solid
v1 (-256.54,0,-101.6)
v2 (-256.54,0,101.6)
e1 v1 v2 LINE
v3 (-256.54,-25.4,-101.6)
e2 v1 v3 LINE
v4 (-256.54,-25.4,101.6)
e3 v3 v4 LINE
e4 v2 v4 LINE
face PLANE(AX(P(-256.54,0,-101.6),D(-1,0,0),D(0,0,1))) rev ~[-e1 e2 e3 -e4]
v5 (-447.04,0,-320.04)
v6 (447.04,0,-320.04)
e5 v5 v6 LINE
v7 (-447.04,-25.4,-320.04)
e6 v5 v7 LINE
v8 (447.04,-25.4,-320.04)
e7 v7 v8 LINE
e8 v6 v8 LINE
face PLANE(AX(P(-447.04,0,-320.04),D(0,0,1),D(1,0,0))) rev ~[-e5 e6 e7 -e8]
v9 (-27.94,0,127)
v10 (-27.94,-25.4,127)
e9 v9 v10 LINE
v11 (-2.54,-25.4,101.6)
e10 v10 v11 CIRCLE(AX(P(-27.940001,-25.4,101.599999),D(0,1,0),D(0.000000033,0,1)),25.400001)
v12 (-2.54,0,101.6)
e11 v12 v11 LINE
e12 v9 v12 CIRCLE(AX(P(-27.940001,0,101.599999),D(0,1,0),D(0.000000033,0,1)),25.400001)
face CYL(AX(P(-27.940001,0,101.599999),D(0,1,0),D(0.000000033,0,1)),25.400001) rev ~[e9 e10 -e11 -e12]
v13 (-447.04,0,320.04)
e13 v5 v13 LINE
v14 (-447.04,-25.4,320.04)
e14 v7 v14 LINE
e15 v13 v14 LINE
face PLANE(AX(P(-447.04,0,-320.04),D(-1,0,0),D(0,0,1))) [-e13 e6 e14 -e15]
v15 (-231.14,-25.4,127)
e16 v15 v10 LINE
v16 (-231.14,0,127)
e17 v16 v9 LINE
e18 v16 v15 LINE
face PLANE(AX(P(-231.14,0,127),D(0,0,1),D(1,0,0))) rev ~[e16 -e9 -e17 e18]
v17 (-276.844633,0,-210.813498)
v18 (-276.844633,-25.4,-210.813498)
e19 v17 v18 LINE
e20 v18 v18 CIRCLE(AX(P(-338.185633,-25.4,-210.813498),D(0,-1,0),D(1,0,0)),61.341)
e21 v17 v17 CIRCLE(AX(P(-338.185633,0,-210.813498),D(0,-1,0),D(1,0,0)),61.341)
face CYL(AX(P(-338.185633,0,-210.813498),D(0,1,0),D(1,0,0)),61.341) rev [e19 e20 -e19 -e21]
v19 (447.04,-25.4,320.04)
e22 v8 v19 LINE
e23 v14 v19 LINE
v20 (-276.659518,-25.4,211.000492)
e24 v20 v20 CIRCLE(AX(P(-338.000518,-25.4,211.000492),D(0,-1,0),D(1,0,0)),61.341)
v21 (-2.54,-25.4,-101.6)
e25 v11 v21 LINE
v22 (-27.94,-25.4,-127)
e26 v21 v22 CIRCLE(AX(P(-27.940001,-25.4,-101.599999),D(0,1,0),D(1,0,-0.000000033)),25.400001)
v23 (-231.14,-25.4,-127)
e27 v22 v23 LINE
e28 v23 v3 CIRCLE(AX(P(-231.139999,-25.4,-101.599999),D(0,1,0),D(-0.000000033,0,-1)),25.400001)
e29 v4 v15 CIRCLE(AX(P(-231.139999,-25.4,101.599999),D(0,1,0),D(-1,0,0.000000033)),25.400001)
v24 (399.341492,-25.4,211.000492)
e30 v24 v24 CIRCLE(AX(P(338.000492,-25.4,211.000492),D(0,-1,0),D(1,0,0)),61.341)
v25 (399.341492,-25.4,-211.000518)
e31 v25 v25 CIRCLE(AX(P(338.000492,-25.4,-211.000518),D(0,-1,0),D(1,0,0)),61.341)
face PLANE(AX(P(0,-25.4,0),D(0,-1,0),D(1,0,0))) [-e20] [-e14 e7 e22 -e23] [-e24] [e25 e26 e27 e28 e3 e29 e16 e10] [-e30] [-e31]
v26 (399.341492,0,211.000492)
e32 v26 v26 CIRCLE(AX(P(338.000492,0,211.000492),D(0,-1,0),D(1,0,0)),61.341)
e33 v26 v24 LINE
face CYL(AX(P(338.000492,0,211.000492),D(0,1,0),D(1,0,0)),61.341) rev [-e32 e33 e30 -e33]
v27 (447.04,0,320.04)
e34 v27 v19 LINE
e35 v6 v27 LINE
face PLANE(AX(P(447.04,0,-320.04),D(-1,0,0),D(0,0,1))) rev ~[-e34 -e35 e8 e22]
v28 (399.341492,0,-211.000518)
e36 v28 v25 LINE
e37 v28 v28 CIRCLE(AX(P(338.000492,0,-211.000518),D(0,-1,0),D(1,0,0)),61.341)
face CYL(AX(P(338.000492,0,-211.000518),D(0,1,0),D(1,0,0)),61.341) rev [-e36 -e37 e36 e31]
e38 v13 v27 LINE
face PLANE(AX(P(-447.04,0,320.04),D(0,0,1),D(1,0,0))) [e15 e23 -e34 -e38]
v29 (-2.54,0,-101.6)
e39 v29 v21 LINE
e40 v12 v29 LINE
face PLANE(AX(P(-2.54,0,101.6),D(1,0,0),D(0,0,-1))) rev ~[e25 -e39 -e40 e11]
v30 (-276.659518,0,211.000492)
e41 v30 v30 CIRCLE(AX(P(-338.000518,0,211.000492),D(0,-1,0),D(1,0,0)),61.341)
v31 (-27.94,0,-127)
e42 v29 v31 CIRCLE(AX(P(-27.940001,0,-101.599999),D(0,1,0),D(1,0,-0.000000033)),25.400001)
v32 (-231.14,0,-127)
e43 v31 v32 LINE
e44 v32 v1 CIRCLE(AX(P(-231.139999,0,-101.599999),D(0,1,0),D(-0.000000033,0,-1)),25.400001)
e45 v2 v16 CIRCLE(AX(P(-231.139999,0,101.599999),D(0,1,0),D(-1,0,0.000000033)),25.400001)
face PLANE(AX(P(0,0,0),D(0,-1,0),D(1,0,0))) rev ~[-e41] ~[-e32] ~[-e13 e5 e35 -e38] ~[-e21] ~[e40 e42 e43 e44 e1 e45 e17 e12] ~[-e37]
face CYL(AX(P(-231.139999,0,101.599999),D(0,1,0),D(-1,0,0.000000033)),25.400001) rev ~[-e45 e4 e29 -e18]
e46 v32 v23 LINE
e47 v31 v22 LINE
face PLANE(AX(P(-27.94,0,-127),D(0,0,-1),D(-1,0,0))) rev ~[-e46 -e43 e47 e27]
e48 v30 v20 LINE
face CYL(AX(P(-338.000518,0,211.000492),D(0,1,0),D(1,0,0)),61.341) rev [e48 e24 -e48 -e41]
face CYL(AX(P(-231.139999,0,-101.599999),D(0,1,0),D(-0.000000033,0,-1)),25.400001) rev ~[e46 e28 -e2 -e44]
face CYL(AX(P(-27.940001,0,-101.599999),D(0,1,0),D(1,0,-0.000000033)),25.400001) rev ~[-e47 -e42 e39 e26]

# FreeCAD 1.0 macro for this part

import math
import FreeCAD as App
import Part
import Sketcher
Q = App.Units.Quantity

doc = App.newDocument("Part")
body = doc.addObject("PartDesign::Body", "Body")

sketch1 = body.newObject("Sketcher::SketchObject", "Sketch")
sketch1.AttachmentSupport = (doc.getObject("XZ_Plane"), [""])
sketch1.MapMode = "FlatFace"
sketch1.addGeometry([
    Part.LineSegment(App.Vector(-447, 320, 0), App.Vector(-447, -320, 0)),
    Part.LineSegment(App.Vector(-447, -320, 0), App.Vector(447, -320, 0)),
    Part.LineSegment(App.Vector(447, -320, 0), App.Vector(447, 320, 0)),
    Part.LineSegment(App.Vector(447, 320, 0), App.Vector(-447, 320, 0)),
    Part.Circle(App.Vector(-338, -211, 0), App.Vector(0, 0, 1), 61),
    Part.Circle(App.Vector(338, -211, 0), App.Vector(0, 0, 1), 61),
    Part.LineSegment(App.Vector(-231, 127, 0), App.Vector(-28, 127, 0)),
    Part.ArcOfCircle(Part.Circle(App.Vector(-28, 102, 0), App.Vector(0, 0, 1), 25), math.radians(0), math.radians(90)),
    Part.LineSegment(App.Vector(-3, 102, 0), App.Vector(-3, -102, 0)),
    Part.ArcOfCircle(Part.Circle(App.Vector(-28, -102, 0), App.Vector(0, 0, 1), 25), math.radians(-90), math.radians(0)),
    Part.LineSegment(App.Vector(-28, -127, 0), App.Vector(-231, -127, 0)),
    Part.ArcOfCircle(Part.Circle(App.Vector(-231, -102, 0), App.Vector(0, 0, 1), 25), math.radians(-180), math.radians(-90)),
    Part.LineSegment(App.Vector(-257, -102, 0), App.Vector(-257, 102, 0)),
    Part.ArcOfCircle(Part.Circle(App.Vector(-231, 102, 0), App.Vector(0, 0, 1), 25), math.radians(90), math.radians(180)),
    Part.Circle(App.Vector(-338, 211, 0), App.Vector(0, 0, 1), 61),
    Part.Circle(App.Vector(338, 211, 0), App.Vector(0, 0, 1), 61),
], False)
sketch1.addConstraint([
    Sketcher.Constraint("Coincident", 0, 2, 1, 1),
    Sketcher.Constraint("Coincident", 1, 2, 2, 1),
    Sketcher.Constraint("Coincident", 2, 2, 3, 1),
    Sketcher.Constraint("Coincident", 3, 2, 0, 1),
    Sketcher.Constraint("Tangent", 6, 2, 7, 2),
    Sketcher.Constraint("Tangent", 7, 1, 8, 1),
    Sketcher.Constraint("Tangent", 8, 2, 9, 2),
    Sketcher.Constraint("Tangent", 9, 1, 10, 1),
    Sketcher.Constraint("Tangent", 10, 2, 11, 2),
    Sketcher.Constraint("Tangent", 11, 1, 12, 1),
    Sketcher.Constraint("Tangent", 12, 2, 13, 2),
    Sketcher.Constraint("Tangent", 13, 1, 6, 1),
    Sketcher.Constraint("Vertical", 0),
    Sketcher.Constraint("Horizontal", 1),
    Sketcher.Constraint("Vertical", 2),
    Sketcher.Constraint("Horizontal", 3),
    Sketcher.Constraint("Horizontal", 6),
    Sketcher.Constraint("Vertical", 8),
    Sketcher.Constraint("Horizontal", 10),
    Sketcher.Constraint("Vertical", 12),
    Sketcher.Constraint("Equal", 4, 5),
    Sketcher.Constraint("Equal", 7, 9),
    Sketcher.Constraint("Equal", 9, 11),
    Sketcher.Constraint("Equal", 11, 13),
    Sketcher.Constraint("Equal", 5, 14),
    Sketcher.Constraint("Equal", 14, 15),
    Sketcher.Constraint("Symmetric", 0, 2, 2, 2, -1, 1),
    Sketcher.Constraint("Horizontal", 14, 3, 15, 3),
    Sketcher.Constraint("Vertical", 5, 3, 15, 3),
    Sketcher.Constraint("Equal", 10, 8),
    Sketcher.Constraint("Radius", 7, Q("1 in")),
    Sketcher.Constraint("Diameter", 4, Q("4.83 in")),
    Sketcher.Constraint("DistanceX", 6, 1, 6, 2, Q("8 in")),
    Sketcher.Constraint("DistanceX", 1, 1, 1, 2, Q("35.2 in")),
    Sketcher.Constraint("DistanceY", 0, 2, 0, 1, Q("25.2 in")),
    Sketcher.Constraint("DistanceY", -1, 1, 7, 3, Q("4 in")),
    Sketcher.Constraint("DistanceX", 7, 3, -1, 1, Q("1.1 in")),
    Sketcher.Constraint("DistanceY", 4, 3, -1, 1, Q("210.813498 mm")),
    Sketcher.Constraint("DistanceX", -1, 1, 5, 3, Q("338.000492 mm")),
    Sketcher.Constraint("DistanceY", 5, 3, -1, 1, Q("211.000518 mm")),
    Sketcher.Constraint("DistanceX", 14, 3, -1, 1, Q("338.000518 mm")),
    Sketcher.Constraint("DistanceY", -1, 1, 14, 3, Q("211.000492 mm")),
    Sketcher.Constraint("DistanceX", 4, 3, -1, 1, Q("338.185633 mm")),
])
pad1 = body.newObject("PartDesign::Pad", "Pad")
pad1.Profile = sketch1
pad1.Length = Q("1 in")

doc.recompute()
